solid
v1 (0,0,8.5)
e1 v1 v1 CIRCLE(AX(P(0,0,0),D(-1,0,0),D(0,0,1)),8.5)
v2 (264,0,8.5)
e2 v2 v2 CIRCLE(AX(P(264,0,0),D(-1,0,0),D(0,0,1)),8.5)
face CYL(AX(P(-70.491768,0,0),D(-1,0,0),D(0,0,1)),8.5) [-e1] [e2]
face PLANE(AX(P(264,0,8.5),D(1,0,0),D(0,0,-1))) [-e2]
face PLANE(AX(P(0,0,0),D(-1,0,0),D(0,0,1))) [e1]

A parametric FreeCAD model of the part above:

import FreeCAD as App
import Part
import Sketcher

V = App.Vector
Q = App.Units.Quantity

doc = App.newDocument("Part")
body = doc.addObject("PartDesign::Body", "Body")

sketch1 = doc.addObject("Sketcher::SketchObject", "Sketch")
body.addObject(sketch1)
sketch1.AttachmentSupport = (doc.XZ_Plane, [""])
sketch1.MapMode = "FlatFace"
sketch1.addGeometry([
    Part.LineSegment(V(0, 0, 0), V(0, 8, 0)),
    Part.LineSegment(V(0, 8, 0), V(264, 8, 0)),
    Part.LineSegment(V(264, 8, 0), V(264, 0, 0)),
    Part.LineSegment(V(264, 0, 0), V(0, 0, 0)),
], False)
sketch1.addConstraint([
    Sketcher.Constraint("Coincident", 0, 2, 1, 1),
    Sketcher.Constraint("Coincident", 1, 2, 2, 1),
    Sketcher.Constraint("Coincident", 2, 2, 3, 1),
    Sketcher.Constraint("Coincident", 3, 2, 0, 1),
    Sketcher.Constraint("Vertical", 0),
    Sketcher.Constraint("Horizontal", 1),
    Sketcher.Constraint("Vertical", 2),
    Sketcher.Constraint("Horizontal", 3),
    Sketcher.Constraint("Coincident", 3, 2, -1, 1),
    Sketcher.Constraint("DistanceX", 1, 1, 1, 2, Q("264 mm")),
    Sketcher.Constraint("DistanceY", 0, 1, 0, 2, Q("8.5 mm")),
])
revolution = doc.addObject("PartDesign::Revolution", "Revolution")
body.addObject(revolution)
revolution.Profile = sketch1
revolution.ReferenceAxis = (sketch1, ["H_Axis"])
revolution.Angle = 360

doc.recompute()
